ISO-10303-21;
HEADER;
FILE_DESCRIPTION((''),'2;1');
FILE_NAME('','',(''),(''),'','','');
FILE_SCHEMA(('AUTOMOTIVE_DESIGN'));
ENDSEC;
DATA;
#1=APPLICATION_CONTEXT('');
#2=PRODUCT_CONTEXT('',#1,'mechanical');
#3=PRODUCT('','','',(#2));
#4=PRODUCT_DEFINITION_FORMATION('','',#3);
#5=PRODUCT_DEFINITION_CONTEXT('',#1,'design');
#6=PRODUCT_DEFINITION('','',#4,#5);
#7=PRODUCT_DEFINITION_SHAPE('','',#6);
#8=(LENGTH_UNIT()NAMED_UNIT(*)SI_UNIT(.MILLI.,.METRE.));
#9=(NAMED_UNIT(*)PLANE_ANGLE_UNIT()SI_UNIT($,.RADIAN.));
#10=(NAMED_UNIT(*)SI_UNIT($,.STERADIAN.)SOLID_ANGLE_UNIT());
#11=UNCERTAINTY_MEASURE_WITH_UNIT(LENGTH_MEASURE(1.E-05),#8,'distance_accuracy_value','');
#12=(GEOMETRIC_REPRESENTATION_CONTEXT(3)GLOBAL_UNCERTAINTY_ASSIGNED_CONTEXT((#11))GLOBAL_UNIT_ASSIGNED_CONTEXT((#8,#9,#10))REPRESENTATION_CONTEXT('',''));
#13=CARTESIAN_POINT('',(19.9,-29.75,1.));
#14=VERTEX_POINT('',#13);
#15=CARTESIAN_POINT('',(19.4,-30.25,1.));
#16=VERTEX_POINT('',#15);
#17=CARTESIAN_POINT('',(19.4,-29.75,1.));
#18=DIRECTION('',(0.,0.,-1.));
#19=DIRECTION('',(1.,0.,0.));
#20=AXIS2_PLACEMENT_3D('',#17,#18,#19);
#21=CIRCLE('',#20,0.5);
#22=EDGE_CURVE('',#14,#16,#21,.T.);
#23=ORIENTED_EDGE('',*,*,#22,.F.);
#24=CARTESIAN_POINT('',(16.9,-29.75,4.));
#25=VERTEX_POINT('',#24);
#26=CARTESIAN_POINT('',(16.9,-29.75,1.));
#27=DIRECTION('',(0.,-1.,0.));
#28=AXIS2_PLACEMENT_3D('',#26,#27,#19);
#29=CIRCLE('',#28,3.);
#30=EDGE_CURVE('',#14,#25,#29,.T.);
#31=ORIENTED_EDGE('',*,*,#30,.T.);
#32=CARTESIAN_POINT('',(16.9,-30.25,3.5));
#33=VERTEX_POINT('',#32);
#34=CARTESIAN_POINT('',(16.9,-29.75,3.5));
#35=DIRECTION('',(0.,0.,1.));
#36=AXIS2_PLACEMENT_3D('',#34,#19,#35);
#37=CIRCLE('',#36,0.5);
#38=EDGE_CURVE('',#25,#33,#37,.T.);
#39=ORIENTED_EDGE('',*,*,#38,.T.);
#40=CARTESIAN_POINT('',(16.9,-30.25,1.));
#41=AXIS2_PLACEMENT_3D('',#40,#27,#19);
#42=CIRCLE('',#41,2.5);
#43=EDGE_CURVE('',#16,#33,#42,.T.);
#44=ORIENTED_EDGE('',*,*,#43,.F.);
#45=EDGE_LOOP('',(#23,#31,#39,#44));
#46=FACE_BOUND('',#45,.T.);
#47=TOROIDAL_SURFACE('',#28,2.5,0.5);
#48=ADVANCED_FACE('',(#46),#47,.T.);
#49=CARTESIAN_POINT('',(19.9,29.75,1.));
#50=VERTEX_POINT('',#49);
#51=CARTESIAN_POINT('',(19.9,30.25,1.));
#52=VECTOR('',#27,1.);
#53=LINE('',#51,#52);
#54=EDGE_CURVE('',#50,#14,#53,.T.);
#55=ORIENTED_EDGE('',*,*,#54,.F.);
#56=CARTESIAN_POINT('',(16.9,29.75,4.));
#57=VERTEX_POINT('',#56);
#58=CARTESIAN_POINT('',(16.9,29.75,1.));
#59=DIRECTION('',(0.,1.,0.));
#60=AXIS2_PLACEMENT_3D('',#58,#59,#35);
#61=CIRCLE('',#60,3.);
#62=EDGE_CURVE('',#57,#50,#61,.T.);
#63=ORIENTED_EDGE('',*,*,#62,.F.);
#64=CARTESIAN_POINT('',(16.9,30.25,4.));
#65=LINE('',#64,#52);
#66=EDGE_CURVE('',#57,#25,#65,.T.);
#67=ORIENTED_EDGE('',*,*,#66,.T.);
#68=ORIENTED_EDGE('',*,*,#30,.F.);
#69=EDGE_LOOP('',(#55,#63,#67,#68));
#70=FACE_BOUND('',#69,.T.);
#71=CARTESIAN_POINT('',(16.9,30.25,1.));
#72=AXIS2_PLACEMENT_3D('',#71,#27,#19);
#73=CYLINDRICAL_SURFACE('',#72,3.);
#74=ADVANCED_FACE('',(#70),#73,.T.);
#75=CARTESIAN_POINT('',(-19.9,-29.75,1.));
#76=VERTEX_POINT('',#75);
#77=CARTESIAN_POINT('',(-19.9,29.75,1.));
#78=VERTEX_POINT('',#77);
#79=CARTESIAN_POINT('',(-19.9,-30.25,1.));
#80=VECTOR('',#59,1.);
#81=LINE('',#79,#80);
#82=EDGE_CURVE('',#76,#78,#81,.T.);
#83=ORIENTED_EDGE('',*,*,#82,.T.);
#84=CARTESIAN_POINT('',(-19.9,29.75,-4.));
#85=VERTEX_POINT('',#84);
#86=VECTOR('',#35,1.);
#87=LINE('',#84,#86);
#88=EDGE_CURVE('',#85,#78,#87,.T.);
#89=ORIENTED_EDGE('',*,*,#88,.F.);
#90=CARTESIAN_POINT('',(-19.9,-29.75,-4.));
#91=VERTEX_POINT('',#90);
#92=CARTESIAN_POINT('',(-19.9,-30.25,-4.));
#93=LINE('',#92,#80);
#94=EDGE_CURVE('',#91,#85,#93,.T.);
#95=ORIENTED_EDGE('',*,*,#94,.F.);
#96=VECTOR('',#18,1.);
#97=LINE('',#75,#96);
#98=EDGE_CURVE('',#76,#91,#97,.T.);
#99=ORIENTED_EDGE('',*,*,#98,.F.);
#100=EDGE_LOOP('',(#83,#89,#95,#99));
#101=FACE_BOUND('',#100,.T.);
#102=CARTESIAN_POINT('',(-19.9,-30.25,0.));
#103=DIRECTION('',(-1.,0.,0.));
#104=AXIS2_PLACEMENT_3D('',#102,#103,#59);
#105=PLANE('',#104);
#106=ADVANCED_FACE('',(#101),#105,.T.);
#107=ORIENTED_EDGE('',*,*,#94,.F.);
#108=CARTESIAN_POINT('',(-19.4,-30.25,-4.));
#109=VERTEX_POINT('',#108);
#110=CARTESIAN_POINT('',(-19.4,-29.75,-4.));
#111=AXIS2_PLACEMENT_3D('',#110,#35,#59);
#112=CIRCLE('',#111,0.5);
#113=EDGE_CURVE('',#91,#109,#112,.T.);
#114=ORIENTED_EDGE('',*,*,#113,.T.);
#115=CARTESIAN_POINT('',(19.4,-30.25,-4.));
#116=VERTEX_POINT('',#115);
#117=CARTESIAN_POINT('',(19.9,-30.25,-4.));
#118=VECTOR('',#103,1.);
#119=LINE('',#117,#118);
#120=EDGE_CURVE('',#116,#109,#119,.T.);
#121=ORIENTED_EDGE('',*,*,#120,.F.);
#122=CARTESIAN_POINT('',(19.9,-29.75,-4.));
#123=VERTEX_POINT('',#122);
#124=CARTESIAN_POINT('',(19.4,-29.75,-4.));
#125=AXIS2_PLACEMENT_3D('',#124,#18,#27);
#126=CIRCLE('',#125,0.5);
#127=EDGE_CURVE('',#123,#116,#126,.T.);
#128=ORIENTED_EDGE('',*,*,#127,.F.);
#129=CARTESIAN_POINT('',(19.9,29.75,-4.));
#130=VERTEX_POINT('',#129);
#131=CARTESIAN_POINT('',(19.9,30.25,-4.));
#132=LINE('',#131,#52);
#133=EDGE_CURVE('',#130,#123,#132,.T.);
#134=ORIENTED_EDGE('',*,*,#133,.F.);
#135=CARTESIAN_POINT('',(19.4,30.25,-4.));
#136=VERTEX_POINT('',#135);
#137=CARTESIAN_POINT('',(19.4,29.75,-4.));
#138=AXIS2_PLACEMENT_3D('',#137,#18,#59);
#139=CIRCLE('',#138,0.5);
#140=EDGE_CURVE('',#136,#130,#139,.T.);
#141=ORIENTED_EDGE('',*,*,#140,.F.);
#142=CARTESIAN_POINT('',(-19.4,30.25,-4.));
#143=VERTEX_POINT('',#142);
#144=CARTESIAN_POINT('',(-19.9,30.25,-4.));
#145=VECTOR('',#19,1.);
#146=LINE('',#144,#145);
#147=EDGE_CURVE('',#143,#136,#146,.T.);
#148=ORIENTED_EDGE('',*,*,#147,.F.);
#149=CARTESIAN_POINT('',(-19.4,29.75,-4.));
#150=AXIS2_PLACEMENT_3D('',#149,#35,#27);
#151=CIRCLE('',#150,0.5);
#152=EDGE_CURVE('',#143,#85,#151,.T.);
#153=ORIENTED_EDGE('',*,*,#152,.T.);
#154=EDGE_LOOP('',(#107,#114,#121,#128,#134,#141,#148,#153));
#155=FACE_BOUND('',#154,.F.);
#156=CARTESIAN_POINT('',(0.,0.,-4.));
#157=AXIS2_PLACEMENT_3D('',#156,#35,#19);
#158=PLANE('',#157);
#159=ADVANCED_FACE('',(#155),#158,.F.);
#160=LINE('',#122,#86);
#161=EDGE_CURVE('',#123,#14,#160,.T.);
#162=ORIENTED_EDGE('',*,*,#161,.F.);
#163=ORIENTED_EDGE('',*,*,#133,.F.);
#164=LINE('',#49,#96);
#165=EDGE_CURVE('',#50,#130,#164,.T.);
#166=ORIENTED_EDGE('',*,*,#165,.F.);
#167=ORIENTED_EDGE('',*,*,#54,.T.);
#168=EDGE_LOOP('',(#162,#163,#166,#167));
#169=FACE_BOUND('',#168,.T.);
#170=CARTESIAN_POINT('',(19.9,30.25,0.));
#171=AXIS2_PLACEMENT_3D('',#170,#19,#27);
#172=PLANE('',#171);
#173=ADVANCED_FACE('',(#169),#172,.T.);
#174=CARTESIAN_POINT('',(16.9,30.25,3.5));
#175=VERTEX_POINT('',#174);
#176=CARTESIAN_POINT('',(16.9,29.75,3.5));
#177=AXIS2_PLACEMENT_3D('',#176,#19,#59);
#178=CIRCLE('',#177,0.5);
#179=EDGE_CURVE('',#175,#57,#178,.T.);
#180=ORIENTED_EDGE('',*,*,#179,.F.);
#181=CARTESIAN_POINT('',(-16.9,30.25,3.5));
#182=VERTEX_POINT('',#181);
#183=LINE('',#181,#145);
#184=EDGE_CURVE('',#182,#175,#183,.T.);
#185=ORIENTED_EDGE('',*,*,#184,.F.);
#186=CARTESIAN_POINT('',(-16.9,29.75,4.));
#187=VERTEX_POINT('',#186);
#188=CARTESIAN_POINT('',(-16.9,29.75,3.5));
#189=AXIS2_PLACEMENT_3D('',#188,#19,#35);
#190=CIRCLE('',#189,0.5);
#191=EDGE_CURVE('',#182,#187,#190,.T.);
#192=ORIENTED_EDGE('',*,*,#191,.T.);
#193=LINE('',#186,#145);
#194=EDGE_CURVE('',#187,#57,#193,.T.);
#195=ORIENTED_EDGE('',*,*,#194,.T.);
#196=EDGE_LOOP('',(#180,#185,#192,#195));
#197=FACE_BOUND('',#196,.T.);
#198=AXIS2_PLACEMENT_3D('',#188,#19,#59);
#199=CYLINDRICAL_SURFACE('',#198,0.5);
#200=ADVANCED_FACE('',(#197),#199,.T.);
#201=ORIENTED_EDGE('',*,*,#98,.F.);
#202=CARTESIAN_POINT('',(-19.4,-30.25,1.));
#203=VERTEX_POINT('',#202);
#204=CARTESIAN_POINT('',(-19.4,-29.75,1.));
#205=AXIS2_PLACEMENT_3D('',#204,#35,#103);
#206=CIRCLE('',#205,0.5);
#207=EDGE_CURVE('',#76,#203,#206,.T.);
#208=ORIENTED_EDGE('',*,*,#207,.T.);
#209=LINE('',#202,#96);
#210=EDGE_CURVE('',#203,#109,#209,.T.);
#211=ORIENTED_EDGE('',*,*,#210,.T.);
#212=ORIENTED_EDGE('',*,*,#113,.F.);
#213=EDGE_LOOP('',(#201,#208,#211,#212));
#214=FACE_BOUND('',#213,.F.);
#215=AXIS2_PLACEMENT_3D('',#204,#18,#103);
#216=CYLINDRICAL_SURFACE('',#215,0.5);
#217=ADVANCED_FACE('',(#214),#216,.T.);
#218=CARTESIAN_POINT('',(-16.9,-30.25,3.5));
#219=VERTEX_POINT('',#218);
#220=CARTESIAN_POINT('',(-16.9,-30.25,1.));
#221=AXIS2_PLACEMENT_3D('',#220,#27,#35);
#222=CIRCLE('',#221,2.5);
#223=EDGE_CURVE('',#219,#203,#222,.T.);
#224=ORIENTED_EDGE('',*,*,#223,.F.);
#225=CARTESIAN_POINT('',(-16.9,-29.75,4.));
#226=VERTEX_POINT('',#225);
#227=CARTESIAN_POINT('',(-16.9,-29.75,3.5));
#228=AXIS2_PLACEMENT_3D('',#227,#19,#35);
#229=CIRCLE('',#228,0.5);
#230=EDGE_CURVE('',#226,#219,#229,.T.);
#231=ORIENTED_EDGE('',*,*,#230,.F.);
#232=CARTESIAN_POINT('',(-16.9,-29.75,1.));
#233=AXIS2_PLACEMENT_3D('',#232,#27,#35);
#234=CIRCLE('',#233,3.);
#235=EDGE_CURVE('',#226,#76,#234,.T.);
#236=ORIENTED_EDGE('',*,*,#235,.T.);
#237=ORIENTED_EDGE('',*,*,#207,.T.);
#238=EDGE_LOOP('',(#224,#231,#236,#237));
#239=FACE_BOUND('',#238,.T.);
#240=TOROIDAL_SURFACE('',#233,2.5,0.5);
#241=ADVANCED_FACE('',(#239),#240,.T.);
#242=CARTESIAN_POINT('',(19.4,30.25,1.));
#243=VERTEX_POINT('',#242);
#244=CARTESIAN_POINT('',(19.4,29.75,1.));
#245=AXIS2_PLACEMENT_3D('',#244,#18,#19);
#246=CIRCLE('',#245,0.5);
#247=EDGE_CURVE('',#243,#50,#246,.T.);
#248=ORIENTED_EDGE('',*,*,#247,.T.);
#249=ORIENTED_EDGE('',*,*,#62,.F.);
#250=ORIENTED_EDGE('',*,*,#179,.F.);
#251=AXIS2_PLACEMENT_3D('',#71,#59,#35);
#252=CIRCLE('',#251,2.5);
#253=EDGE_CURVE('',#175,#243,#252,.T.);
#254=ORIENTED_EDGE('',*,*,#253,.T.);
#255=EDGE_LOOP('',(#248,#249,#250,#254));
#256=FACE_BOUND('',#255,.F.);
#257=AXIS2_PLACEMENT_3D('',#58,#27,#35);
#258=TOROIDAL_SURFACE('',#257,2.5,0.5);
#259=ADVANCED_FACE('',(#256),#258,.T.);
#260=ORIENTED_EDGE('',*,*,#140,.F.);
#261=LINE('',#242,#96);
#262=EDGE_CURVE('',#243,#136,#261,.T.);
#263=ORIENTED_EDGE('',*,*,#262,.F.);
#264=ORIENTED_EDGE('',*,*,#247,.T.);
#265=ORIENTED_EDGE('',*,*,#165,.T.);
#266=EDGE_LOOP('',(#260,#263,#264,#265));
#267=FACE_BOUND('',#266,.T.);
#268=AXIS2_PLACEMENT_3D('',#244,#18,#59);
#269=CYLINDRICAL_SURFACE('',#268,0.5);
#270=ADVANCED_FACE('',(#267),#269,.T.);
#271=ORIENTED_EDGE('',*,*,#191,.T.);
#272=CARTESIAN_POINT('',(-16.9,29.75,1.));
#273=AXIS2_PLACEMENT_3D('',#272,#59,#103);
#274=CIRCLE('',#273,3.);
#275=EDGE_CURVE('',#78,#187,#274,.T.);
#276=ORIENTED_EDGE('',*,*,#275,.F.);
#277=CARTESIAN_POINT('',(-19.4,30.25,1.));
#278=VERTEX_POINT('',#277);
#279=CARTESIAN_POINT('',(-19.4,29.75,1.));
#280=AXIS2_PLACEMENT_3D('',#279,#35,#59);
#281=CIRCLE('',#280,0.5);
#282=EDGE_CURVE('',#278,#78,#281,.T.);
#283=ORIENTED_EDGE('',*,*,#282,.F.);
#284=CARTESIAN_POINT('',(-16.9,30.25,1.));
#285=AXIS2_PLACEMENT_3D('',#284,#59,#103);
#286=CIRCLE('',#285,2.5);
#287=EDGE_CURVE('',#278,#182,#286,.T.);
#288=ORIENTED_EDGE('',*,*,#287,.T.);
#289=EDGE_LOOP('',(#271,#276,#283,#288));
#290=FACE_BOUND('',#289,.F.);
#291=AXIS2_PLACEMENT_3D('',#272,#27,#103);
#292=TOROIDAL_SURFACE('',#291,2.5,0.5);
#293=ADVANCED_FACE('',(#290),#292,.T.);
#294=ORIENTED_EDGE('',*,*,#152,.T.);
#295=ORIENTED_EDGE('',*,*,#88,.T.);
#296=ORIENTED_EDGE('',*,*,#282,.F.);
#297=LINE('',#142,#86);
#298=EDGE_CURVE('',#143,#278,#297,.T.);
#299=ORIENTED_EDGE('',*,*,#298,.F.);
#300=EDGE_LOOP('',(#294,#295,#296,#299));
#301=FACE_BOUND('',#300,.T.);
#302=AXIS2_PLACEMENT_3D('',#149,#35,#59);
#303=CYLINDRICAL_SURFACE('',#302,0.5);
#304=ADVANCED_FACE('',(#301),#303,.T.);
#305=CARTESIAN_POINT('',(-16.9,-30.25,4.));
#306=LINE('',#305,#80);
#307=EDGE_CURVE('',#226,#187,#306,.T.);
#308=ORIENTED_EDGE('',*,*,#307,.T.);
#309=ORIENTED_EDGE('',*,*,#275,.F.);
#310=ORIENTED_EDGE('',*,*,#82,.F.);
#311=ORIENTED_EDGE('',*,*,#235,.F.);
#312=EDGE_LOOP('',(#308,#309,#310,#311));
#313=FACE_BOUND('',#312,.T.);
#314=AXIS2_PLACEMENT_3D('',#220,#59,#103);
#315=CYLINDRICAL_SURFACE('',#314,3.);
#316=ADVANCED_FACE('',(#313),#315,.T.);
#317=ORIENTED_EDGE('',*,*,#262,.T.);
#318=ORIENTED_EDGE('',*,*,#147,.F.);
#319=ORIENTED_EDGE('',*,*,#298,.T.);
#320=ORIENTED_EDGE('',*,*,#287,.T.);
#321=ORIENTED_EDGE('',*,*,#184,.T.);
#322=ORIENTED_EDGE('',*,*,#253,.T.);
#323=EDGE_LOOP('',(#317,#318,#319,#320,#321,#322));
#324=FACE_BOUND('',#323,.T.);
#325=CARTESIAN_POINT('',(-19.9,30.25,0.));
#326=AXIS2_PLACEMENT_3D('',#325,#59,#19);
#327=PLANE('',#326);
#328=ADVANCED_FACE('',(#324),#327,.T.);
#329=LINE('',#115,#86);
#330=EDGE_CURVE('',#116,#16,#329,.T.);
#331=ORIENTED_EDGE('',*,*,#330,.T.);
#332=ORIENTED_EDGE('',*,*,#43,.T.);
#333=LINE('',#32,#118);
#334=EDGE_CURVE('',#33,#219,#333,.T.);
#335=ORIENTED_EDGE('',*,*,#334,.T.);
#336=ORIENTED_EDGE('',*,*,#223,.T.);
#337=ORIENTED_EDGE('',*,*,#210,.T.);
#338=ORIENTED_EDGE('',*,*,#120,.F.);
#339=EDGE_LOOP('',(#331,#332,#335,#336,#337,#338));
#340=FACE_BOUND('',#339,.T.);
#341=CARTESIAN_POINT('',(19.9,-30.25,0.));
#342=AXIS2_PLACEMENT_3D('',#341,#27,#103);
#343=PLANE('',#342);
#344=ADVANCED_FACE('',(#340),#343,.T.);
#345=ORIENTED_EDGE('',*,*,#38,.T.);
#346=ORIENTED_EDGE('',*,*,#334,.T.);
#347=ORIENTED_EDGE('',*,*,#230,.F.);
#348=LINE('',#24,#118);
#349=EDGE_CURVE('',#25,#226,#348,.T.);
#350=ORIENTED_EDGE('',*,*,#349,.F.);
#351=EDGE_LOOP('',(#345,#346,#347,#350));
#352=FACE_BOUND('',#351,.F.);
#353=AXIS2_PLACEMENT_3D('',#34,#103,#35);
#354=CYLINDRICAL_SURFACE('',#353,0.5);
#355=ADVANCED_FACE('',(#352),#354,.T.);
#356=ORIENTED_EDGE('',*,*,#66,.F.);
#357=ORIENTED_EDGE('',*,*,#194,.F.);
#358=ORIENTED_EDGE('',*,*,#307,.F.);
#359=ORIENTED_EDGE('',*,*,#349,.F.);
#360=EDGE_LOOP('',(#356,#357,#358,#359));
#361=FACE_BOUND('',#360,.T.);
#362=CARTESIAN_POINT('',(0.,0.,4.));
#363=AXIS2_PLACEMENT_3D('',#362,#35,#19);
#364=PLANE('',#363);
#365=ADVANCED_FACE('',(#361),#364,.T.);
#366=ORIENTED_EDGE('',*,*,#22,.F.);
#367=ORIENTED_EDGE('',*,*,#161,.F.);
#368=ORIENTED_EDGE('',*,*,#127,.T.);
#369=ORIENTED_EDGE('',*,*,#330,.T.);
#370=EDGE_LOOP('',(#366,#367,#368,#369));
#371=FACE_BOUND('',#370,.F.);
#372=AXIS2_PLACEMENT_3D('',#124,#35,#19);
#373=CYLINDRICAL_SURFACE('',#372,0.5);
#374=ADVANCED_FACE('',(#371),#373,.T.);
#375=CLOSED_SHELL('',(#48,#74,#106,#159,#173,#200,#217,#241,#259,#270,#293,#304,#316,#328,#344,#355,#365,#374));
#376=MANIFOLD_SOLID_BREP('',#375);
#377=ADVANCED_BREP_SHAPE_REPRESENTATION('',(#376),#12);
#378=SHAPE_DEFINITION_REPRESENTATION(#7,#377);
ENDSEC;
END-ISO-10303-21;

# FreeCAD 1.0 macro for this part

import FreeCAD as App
import Part
import Sketcher

V = App.Vector


def edges_at(feature, points):
    """Names of the edges that pass closest to the given points."""
    edges = feature.Shape.Edges
    near = lambda p: min(range(len(edges)), key=lambda i: edges[i].distToShape(Part.Vertex(*p))[0])
    return sorted({f"Edge{near(p) + 1}" for p in points})

doc = App.newDocument("Part")
body = doc.addObject("PartDesign::Body", "Body")

sketch1 = body.newObject("Sketcher::SketchObject", "Sketch")
sketch1.AttachmentSupport = (doc.getObject("XY_Plane"), [""])
sketch1.MapMode = "FlatFace"
sketch1.addGeometry([
    Part.LineSegment(V(20, 30, 0), V(-20, 30, 0)),
    Part.LineSegment(V(-20, 30, 0), V(-20, -30, 0)),
    Part.LineSegment(V(-20, -30, 0), V(20, -30, 0)),
    Part.LineSegment(V(20, -30, 0), V(20, 30, 0)),
], False)
sketch1.addConstraint([
    Sketcher.Constraint("Coincident", 0, 2, 1, 1),
    Sketcher.Constraint("Coincident", 1, 2, 2, 1),
    Sketcher.Constraint("Coincident", 2, 2, 3, 1),
    Sketcher.Constraint("Coincident", 3, 2, 0, 1),
    Sketcher.Constraint("Horizontal", 0),
    Sketcher.Constraint("Vertical", 1),
    Sketcher.Constraint("Horizontal", 2),
    Sketcher.Constraint("Vertical", 3),
    Sketcher.Constraint("Symmetric", 0, 2, 2, 2, -1, 1),
    Sketcher.Constraint("DistanceX", 0, 2, 0, 1, 39.8),
    Sketcher.Constraint("DistanceY", 1, 2, 1, 1, 60.5),
])
pad1 = body.newObject("PartDesign::Pad", "Pad")
pad1.Profile = sketch1
pad1.Length = 8
pad1.Midplane = True
doc.recompute()

fillet = body.newObject("PartDesign::Fillet", "Fillet")
fillet.Base = (pad1, edges_at(pad1, [(19.9, 0, 4), (-19.9, 0, 4)]))
fillet.Radius = 3
doc.recompute()

fillet2 = body.newObject("PartDesign::Fillet", "Fillet001")
fillet2.Base = (fillet, edges_at(fillet, [
    (-19.021, 30.25, 3.121),
    (-19.9, 30.25, -1.5),
    (19.021, 30.25, 3.121),
    (19.9, 30.25, -1.5),
    (0, 30.25, 4),
    (19.021, -30.25, 3.121),
    (19.9, -30.25, -1.5),
    (-19.021, -30.25, 3.121),
    (-19.9, -30.25, -1.5),
    (0, -30.25, 4),
]))
fillet2.Radius = 0.5

doc.recompute()
